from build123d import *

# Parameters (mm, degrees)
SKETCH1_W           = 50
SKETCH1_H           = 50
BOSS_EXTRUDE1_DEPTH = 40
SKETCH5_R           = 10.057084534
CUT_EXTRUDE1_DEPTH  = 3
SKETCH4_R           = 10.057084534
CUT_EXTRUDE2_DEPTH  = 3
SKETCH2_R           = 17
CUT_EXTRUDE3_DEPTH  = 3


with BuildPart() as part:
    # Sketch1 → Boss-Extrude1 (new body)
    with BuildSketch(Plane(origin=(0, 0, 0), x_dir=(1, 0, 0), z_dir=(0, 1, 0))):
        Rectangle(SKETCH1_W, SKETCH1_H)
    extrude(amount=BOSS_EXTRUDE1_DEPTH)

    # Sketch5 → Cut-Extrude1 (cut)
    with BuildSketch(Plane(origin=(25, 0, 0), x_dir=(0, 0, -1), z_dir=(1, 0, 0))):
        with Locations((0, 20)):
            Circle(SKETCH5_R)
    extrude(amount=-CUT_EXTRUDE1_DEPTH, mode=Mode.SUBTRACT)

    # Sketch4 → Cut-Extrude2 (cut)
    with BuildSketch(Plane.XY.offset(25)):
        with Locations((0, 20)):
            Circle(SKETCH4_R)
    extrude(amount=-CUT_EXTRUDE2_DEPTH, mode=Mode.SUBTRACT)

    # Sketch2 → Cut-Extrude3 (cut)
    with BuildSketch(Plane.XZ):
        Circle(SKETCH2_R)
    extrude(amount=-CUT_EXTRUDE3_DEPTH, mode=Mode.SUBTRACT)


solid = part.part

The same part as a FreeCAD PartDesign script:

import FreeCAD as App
import Part
import Sketcher
Q = App.Units.Quantity


def add_polygon(sketch, points):
    """Adds a closed chain of lines whose ends are joined by coincident constraints."""
    first, n = sketch.GeometryCount, len(points)
    for a, b in zip(points, points[1:] + points[:1]):
        sketch.addGeometry(Part.LineSegment(App.Vector(*a, 0), App.Vector(*b, 0)), False)
    for i in range(n):
        sketch.addConstraint(Sketcher.Constraint("Coincident", first + i, 2, first + (i + 1) % n, 1))

doc = App.newDocument("Part")
body = doc.addObject("PartDesign::Body", "Body")

# Sketch on XZ plane
sketch1 = body.newObject("Sketcher::SketchObject", "Sketch")
sketch1.AttachmentSupport = (doc.getObject("XZ_Plane"), [""])
sketch1.MapMode = "FlatFace"
add_polygon(sketch1, [(-25, -25), (-25, 25), (25, 25), (25, -25)])  # lines 0-3
sketch1.addConstraint([
    Sketcher.Constraint("Vertical", 0),
    Sketcher.Constraint("Horizontal", 1),
    Sketcher.Constraint("Vertical", 2),
    Sketcher.Constraint("Horizontal", 3),
    Sketcher.Constraint("Symmetric", 0, 2, 2, 2, -1, 1),
    Sketcher.Constraint("Equal", 3, 0),
    Sketcher.Constraint("DistanceX", 1, 1, 1, 2, Q("50 mm")),
])
pad1 = body.newObject("PartDesign::Pad", "Pad")
pad1.Profile = sketch1
pad1.Length = 40
pad1.Reversed = True

# Sketch on YZ plane
sketch2 = body.newObject("Sketcher::SketchObject", "Sketch001")
sketch2.AttachmentSupport = (doc.getObject("YZ_Plane"), [""])
sketch2.MapMode = "FlatFace"
sketch2.AttachmentOffset = App.Placement(App.Vector(0, 0, 25), App.Rotation())
sketch2.addGeometry(Part.Circle(App.Vector(20, 0, 0), App.Vector(0, 0, 1), 10.057085), False)
sketch2.addConstraint([
    Sketcher.Constraint("PointOnObject", 0, 3, -1),
    Sketcher.Constraint("DistanceX", -1, 1, 0, 3, Q("20 mm")),
    Sketcher.Constraint("Diameter", 0, Q("20.114169 mm")),
])
pocket1 = body.newObject("PartDesign::Pocket", "Pocket")
pocket1.Profile = sketch2
pocket1.Length = 3

# Sketch on XY plane
sketch3 = body.newObject("Sketcher::SketchObject", "Sketch002")
sketch3.AttachmentSupport = (doc.getObject("XY_Plane"), [""])
sketch3.MapMode = "FlatFace"
sketch3.AttachmentOffset = App.Placement(App.Vector(0, 0, 25), App.Rotation())
sketch3.addGeometry(Part.Circle(App.Vector(0, 20, 0), App.Vector(0, 0, 1), 10.057085), False)
sketch3.addConstraint([
    Sketcher.Constraint("PointOnObject", 0, 3, -2),
    Sketcher.Constraint("DistanceY", -1, 1, 0, 3, Q("20 mm")),
    Sketcher.Constraint("Diameter", 0, Q("20.114169 mm")),
])
pocket2 = body.newObject("PartDesign::Pocket", "Pocket001")
pocket2.Profile = sketch3
pocket2.Length = 3

# Sketch on XZ plane
sketch4 = body.newObject("Sketcher::SketchObject", "Sketch003")
sketch4.AttachmentSupport = (doc.getObject("XZ_Plane"), [""])
sketch4.MapMode = "FlatFace"
sketch4.addGeometry(Part.Circle(App.Vector(0, 0, 0), App.Vector(0, 0, 1), 17), False)
sketch4.addConstraint([
    Sketcher.Constraint("Coincident", 0, 3, -1, 1),
    Sketcher.Constraint("Diameter", 0, Q("34 mm")),
])
pocket3 = body.newObject("PartDesign::Pocket", "Pocket002")
pocket3.Profile = sketch4
pocket3.Length = 3

doc.recompute()
